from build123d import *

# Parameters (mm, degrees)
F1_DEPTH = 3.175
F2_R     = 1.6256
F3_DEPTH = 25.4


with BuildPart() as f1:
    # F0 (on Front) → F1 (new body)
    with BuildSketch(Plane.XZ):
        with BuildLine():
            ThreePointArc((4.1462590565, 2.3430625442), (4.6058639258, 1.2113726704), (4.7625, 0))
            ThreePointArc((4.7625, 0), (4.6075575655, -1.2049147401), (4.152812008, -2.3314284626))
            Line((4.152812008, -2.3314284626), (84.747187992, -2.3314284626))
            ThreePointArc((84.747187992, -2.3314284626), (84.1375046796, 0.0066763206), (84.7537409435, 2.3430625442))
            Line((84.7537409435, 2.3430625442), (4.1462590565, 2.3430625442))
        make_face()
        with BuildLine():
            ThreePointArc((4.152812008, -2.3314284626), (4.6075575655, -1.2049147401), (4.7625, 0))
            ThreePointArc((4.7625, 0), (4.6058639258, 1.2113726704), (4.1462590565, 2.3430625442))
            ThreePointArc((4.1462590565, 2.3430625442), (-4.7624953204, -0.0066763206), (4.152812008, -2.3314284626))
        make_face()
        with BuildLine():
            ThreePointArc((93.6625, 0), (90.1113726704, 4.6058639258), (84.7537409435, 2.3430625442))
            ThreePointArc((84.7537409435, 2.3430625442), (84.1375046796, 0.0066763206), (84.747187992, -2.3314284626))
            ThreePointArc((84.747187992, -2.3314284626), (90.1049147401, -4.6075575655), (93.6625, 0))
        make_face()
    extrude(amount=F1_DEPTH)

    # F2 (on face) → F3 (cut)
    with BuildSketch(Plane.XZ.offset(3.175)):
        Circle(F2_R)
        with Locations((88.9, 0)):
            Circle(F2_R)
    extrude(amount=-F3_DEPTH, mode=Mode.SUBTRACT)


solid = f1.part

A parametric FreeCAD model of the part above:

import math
import FreeCAD as App
import Part
import Sketcher
Q = App.Units.Quantity

doc = App.newDocument("Part")
body = doc.addObject("PartDesign::Body", "Body")

sketch1 = body.newObject("Sketcher::SketchObject", "Sketch")
sketch1.AttachmentSupport = (doc.getObject("XZ_Plane"), [""])
sketch1.MapMode = "FlatFace"
sketch1.addGeometry(Part.LineSegment(App.Vector(4.2, -2.3, 0), App.Vector(84.7, -2.3, 0)), False)
sketch1.addGeometry(Part.ArcOfCircle(Part.Circle(App.Vector(88.9, 0, 0), App.Vector(0, 0, 1), 4.8), math.radians(-151), math.radians(151)), False)
sketch1.addGeometry(Part.LineSegment(App.Vector(84.8, 2.3, 0), App.Vector(4.1, 2.3, 0)), False)
sketch1.addGeometry(Part.ArcOfCircle(Part.Circle(App.Vector(0, 0, 0), App.Vector(0, 0, 1), 4.8), math.radians(29), math.radians(331)), False)
sketch1.addConstraint(Sketcher.Constraint("Coincident", 0, 2, 1, 1))
sketch1.addConstraint(Sketcher.Constraint("Coincident", 1, 2, 2, 1))
sketch1.addConstraint(Sketcher.Constraint("Coincident", 2, 2, 3, 1))
sketch1.addConstraint(Sketcher.Constraint("Coincident", 3, 2, 0, 1))
sketch1.addConstraint(Sketcher.Constraint("Horizontal", 0))
sketch1.addConstraint(Sketcher.Constraint("Horizontal", 2))
sketch1.addConstraint(Sketcher.Constraint("Coincident", 3, 3, -1, 1))
sketch1.addConstraint(Sketcher.Constraint("Equal", 1, 3))
sketch1.addConstraint(Sketcher.Constraint("PointOnObject", 1, 3, -1))
sketch1.addConstraint(Sketcher.Constraint("Radius", 1, Q("0.1875 in")))
sketch1.addConstraint(Sketcher.Constraint("DistanceX", -1, 1, 1, 3, Q("3.5 in")))
sketch1.addConstraint(Sketcher.Constraint("DistanceX", 2, 2, 2, 1, Q("80.607482 mm")))
sketch1.addConstraint(Sketcher.Constraint("DistanceX", 0, 1, 0, 2, Q("80.594376 mm")))
pad1 = body.newObject("PartDesign::Pad", "Pad")
pad1.Profile = sketch1
pad1.Length = Q("0.125 in")

sketch2 = body.newObject("Sketcher::SketchObject", "Sketch001")
sketch2.AttachmentSupport = (doc.getObject("XZ_Plane"), [""])
sketch2.MapMode = "FlatFace"
sketch2.AttachmentOffset = App.Placement(App.Vector(0, 0, 0.125 * 25.4), App.Rotation())
sketch2.addGeometry(Part.Circle(App.Vector(0, 0, 0), App.Vector(0, 0, 1), 1.6), False)
sketch2.addGeometry(Part.Circle(App.Vector(88.9, 0, 0), App.Vector(0, 0, 1), 1.6), False)
sketch2.addConstraint(Sketcher.Constraint("Coincident", 0, 3, -1, 1))
sketch2.addConstraint(Sketcher.Constraint("Equal", 0, 1))
sketch2.addConstraint(Sketcher.Constraint("PointOnObject", 1, 3, -1))
sketch2.addConstraint(Sketcher.Constraint("Diameter", 0, Q("0.128 in")))
sketch2.addConstraint(Sketcher.Constraint("DistanceX", -1, 1, 1, 3, Q("3.5 in")))
pocket1 = body.newObject("PartDesign::Pocket", "Pocket")
pocket1.Profile = sketch2
pocket1.Length = Q("1 in")

doc.recompute()
